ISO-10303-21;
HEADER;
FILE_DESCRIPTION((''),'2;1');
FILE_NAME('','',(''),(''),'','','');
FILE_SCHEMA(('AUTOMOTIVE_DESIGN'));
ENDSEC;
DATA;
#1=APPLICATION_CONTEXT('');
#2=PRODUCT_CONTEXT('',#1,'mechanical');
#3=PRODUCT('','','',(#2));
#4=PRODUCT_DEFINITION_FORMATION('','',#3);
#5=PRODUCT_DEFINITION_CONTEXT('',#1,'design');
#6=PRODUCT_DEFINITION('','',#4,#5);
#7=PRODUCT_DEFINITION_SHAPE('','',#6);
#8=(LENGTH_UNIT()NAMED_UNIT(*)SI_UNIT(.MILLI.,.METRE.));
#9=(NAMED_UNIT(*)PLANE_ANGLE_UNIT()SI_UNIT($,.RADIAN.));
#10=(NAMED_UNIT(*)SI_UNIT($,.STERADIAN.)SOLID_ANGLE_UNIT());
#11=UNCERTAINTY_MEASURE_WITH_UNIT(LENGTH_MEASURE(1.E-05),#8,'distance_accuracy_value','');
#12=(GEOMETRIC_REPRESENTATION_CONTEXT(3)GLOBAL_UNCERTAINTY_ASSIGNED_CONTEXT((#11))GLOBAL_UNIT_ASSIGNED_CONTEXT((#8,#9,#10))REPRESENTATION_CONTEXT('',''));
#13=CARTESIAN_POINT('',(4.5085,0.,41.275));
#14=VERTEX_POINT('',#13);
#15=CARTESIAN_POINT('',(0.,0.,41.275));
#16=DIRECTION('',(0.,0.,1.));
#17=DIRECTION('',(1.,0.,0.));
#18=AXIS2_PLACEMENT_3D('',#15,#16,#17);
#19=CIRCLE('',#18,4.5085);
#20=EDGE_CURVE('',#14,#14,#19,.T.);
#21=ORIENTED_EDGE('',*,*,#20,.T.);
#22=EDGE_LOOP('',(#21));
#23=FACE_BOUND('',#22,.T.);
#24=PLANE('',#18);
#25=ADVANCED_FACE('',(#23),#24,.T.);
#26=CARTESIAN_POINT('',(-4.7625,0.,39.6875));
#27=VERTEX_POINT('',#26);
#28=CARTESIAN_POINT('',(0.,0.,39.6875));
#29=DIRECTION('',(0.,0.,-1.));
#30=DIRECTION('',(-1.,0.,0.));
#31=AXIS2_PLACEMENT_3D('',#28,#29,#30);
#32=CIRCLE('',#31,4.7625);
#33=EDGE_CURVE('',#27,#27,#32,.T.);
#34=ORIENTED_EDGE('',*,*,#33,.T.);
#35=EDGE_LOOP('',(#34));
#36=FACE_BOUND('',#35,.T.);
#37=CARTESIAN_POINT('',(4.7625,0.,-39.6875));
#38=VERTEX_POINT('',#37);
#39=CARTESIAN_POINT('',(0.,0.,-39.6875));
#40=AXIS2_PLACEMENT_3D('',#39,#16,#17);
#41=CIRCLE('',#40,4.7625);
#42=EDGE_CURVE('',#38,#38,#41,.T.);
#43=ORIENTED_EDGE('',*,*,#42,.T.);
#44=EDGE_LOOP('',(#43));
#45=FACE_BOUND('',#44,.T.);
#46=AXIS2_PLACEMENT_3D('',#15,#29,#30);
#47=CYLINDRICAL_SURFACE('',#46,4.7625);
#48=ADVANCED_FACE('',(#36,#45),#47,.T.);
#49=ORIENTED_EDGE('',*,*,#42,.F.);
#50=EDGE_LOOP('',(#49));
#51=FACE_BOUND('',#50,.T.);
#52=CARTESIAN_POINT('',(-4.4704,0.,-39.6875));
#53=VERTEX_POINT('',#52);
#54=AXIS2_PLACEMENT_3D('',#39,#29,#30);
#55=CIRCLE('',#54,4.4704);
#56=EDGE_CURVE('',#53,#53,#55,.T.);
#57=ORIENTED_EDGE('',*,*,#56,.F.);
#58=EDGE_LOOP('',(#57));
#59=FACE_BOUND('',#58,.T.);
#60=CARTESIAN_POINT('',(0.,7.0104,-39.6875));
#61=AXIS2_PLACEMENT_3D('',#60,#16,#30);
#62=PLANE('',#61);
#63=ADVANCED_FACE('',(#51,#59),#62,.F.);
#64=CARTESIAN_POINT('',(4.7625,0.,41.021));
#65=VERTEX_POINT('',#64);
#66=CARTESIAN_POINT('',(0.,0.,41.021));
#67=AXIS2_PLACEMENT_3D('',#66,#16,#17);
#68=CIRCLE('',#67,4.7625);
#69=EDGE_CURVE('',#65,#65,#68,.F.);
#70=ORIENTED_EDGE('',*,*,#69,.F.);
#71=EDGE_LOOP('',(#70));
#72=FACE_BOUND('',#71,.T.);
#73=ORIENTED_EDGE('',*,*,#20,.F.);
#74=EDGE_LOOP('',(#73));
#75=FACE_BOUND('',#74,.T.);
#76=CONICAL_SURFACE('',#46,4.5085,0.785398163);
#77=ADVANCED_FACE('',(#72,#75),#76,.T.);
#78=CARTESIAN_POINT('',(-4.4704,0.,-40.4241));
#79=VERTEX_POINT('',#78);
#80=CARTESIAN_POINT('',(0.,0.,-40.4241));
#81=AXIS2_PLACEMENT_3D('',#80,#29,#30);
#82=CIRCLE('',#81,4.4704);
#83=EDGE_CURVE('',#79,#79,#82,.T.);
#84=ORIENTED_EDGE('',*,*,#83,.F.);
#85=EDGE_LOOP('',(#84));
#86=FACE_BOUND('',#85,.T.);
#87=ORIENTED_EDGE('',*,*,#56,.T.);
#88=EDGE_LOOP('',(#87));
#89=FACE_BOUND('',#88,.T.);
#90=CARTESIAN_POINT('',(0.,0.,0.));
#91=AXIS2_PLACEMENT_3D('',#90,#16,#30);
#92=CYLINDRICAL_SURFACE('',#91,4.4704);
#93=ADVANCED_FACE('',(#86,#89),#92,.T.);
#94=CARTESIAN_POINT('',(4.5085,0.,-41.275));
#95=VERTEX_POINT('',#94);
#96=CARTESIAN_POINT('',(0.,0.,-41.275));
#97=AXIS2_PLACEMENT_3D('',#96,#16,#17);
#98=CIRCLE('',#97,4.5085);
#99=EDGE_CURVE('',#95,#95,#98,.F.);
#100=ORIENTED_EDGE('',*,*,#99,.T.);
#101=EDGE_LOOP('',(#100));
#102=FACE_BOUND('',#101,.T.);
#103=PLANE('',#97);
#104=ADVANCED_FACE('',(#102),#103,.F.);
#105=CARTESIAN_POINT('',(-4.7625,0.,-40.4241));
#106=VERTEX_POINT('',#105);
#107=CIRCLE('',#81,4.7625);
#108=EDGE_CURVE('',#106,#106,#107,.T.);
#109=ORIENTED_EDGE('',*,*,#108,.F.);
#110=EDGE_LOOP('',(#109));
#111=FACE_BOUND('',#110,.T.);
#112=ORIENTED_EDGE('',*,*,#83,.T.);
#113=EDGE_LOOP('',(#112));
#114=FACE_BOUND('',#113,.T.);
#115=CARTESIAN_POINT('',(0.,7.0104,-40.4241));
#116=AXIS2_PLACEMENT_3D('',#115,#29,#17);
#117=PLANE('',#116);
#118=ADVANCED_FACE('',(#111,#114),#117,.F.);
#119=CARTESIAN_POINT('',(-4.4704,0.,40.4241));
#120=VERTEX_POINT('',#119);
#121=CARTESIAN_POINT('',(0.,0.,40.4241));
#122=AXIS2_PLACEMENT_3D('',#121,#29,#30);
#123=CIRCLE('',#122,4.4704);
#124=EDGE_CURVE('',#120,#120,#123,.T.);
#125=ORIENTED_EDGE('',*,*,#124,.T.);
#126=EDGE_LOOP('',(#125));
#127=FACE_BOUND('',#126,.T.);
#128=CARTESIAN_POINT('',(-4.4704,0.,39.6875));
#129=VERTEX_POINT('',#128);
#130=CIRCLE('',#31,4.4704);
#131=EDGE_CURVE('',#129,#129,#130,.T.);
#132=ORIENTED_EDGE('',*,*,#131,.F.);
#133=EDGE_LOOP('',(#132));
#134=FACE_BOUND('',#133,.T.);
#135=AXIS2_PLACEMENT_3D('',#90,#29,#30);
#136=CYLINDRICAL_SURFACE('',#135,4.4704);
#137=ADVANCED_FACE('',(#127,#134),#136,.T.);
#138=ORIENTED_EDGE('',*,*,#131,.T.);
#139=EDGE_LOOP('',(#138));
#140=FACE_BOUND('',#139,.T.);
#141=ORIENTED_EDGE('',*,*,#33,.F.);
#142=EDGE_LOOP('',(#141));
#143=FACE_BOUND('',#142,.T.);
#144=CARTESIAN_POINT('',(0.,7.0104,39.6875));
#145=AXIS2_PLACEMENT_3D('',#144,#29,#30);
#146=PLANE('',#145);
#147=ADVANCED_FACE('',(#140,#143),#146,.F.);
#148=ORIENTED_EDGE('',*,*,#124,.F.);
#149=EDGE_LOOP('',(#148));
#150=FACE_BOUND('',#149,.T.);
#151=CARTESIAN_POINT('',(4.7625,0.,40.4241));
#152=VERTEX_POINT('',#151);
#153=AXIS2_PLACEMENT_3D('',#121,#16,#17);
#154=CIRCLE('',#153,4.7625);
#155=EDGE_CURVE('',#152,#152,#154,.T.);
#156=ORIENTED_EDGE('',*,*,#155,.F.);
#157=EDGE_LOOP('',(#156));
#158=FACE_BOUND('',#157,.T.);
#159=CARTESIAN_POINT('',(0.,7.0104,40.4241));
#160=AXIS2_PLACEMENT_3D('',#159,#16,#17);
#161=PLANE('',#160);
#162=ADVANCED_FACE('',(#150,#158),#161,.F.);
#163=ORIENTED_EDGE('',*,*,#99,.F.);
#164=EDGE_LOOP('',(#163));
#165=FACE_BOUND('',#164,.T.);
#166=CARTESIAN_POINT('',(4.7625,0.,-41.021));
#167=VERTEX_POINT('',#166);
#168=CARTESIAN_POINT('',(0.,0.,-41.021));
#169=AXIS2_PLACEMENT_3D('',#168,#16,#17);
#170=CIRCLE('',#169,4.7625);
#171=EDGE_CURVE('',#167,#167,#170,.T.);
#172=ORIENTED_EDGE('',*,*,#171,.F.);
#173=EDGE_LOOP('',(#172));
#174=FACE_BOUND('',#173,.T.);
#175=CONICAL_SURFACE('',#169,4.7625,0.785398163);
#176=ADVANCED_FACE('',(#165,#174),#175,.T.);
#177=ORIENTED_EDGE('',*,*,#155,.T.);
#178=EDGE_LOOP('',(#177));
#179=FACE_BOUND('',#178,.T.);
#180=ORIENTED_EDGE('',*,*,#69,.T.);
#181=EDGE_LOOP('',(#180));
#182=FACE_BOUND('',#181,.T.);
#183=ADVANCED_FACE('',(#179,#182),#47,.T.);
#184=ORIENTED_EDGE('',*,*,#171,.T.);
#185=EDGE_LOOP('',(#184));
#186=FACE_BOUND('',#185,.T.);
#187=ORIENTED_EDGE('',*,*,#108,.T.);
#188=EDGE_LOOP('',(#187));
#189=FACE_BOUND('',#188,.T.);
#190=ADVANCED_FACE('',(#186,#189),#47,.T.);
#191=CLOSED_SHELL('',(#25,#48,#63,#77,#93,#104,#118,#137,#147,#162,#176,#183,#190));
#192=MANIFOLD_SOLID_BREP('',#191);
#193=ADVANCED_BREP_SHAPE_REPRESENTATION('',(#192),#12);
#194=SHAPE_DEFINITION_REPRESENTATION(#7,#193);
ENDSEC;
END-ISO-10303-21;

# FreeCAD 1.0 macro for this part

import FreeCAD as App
import Part
import Sketcher
from FreeCAD import Vector
Q = App.Units.Quantity


def edges_at(feature, points):
    """Names of the edges that pass closest to the given points."""
    edges = feature.Shape.Edges
    near = lambda p: min(range(len(edges)), key=lambda i: edges[i].distToShape(Part.Vertex(*p))[0])
    return sorted({f"Edge{near(p) + 1}" for p in points})

doc = App.newDocument("Part")
body = doc.addObject("PartDesign::Body", "Body")

# Sketch on XY plane
sketch1 = body.newObject("Sketcher::SketchObject", "Sketch")
sketch1.AttachmentSupport = (doc.getObject("XY_Plane"), [""])
sketch1.MapMode = "FlatFace"
sketch1.addGeometry(Part.Circle(Vector(0, 0, 0), Vector(0, 0, 1), 4.8), False)
sketch1.addConstraint([
    Sketcher.Constraint("Coincident", 0, 3, -1, 1),
    Sketcher.Constraint("Diameter", 0, Q("0.375 in")),
])
pad1 = body.newObject("PartDesign::Pad", "Pad")
pad1.Profile = sketch1
pad1.Length = Q("3.25 in")
pad1.Midplane = True

# Sketch on YZ plane
sketch2 = body.newObject("Sketcher::SketchObject", "Sketch001")
sketch2.AttachmentSupport = (doc.getObject("YZ_Plane"), [""])
sketch2.MapMode = "FlatFace"
sketch2.addGeometry([
    Part.LineSegment(Vector(7, 40.4, 0), Vector(4.5, 40.4, 0)),
    Part.LineSegment(Vector(4.5, 40.4, 0), Vector(4.5, 39.7, 0)),
    Part.LineSegment(Vector(4.5, 39.7, 0), Vector(7, 39.7, 0)),
    Part.LineSegment(Vector(7, 39.7, 0), Vector(7, 40.4, 0)),
], False)
sketch2.addConstraint([
    Sketcher.Constraint("Coincident", 0, 2, 1, 1),
    Sketcher.Constraint("Coincident", 1, 2, 2, 1),
    Sketcher.Constraint("Coincident", 2, 2, 3, 1),
    Sketcher.Constraint("Coincident", 3, 2, 0, 1),
    Sketcher.Constraint("Horizontal", 0),
    Sketcher.Constraint("Vertical", 1),
    Sketcher.Constraint("Horizontal", 2),
    Sketcher.Constraint("Vertical", 3),
    Sketcher.Constraint("DistanceX", 0, 2, 0, 1, Q("0.1 in")),
    Sketcher.Constraint("DistanceY", 1, 2, 1, 1, Q("0.029 in")),
    Sketcher.Constraint("DistanceX", -1, 1, 0, 2, Q("0.176 in")),
    Sketcher.Constraint("DistanceY", -1, 1, 1, 2, Q("1.5625 in")),
])
groove = body.newObject("PartDesign::Groove", "Groove")
groove.Profile = sketch2
groove.ReferenceAxis = (sketch2, ["V_Axis"])
groove.Angle = 360
doc.recompute()

chamfer = body.newObject("PartDesign::Chamfer", "Chamfer")
chamfer.Base = (groove, edges_at(groove, [(-4.763, 0, -41.275), (-4.763, 0, 41.275)]))
chamfer.Size = Q("0.01 in")
doc.recompute()

mirrored = body.newObject("PartDesign::Mirrored", "Mirrored")
mirrored.Originals = [groove]
mirrored.MirrorPlane = (doc.getObject("XY_Plane"), [""])
body.Tip = mirrored

doc.recompute()
